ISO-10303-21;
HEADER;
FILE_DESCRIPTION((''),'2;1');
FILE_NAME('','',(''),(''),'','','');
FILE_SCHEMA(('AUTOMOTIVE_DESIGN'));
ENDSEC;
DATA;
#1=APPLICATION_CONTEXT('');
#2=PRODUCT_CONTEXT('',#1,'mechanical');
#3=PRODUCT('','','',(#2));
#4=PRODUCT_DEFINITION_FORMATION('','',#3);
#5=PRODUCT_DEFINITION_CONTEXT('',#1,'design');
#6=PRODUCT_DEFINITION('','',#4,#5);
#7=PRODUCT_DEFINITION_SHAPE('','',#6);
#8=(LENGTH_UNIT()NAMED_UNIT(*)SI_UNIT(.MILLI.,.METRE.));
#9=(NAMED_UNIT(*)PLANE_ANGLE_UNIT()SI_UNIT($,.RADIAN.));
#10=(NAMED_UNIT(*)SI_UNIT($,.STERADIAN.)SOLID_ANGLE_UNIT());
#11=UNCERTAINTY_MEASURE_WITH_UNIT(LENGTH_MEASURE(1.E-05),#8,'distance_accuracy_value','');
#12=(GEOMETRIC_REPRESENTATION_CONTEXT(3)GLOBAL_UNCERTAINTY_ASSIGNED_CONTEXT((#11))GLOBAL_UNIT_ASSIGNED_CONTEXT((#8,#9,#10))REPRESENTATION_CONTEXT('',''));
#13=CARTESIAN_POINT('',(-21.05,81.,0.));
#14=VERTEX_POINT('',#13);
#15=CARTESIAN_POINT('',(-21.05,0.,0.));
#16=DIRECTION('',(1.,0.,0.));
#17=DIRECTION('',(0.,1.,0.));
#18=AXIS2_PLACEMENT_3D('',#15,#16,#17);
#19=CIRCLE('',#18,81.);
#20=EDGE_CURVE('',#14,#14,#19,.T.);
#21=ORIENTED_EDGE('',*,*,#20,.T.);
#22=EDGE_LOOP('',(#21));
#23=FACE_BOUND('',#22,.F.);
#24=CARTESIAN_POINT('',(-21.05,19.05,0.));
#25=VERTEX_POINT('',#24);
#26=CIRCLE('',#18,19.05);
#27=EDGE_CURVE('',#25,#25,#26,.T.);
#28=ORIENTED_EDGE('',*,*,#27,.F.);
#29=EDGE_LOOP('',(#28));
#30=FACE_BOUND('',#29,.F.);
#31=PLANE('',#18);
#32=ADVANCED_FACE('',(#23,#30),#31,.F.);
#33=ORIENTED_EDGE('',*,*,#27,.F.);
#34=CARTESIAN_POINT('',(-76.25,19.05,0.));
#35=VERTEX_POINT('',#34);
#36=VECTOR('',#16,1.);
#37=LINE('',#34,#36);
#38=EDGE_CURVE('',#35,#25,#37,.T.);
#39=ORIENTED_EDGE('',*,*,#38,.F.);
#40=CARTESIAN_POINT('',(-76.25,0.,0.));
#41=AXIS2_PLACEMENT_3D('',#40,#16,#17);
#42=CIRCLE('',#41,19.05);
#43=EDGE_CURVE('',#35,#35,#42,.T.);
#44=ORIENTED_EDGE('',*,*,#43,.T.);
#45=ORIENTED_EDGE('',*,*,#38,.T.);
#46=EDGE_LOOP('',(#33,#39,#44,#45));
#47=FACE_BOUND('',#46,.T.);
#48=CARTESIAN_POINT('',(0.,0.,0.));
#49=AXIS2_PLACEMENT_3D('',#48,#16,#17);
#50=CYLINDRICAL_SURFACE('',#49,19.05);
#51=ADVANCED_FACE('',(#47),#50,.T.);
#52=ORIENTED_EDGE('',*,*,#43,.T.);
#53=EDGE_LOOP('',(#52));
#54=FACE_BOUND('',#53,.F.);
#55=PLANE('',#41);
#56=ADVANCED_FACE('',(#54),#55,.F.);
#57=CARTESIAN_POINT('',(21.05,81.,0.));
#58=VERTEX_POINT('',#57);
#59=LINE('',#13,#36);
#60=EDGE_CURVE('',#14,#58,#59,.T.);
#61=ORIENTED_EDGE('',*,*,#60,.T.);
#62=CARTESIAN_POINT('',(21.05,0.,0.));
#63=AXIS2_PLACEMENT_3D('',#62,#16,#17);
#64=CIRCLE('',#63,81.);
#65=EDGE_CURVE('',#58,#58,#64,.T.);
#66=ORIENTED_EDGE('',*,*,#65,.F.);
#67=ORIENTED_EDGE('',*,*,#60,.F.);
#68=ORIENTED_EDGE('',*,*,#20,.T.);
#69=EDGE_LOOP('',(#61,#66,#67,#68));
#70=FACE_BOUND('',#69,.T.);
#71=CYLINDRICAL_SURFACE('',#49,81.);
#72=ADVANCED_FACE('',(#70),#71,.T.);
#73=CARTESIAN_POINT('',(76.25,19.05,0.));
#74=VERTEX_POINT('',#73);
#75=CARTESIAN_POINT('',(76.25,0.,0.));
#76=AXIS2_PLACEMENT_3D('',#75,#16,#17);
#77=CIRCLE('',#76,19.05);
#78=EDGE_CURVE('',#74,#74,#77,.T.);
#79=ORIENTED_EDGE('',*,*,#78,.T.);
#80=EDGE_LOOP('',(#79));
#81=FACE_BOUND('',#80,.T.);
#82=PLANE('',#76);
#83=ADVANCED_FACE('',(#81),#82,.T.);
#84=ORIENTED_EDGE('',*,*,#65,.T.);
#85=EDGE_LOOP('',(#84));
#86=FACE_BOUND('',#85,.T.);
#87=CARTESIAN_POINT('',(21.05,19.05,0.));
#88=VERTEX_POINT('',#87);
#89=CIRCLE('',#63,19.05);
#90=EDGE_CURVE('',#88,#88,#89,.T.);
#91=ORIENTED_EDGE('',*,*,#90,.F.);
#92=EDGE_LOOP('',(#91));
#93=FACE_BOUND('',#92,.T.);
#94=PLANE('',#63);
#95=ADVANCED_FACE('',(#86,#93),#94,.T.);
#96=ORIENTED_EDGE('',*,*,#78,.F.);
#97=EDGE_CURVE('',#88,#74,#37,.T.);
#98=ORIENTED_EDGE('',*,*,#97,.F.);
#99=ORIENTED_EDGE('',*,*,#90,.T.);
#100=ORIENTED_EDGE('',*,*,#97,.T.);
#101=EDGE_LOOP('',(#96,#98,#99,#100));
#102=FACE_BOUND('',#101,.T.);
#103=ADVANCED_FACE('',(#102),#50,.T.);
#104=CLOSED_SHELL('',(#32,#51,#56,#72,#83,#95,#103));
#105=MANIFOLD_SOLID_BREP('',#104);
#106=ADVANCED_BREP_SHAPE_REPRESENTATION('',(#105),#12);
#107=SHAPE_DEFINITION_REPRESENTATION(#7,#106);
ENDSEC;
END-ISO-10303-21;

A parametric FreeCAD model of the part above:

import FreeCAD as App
import Part
import Sketcher

V = App.Vector

doc = App.newDocument("Part")
body = doc.addObject("PartDesign::Body", "Body")

sketch1 = body.newObject("Sketcher::SketchObject", "Sketch")
sketch1.AttachmentSupport = (doc.getObject("YZ_Plane"), [""])
sketch1.MapMode = "FlatFace"
sketch1.addGeometry(Part.Circle(V(0, 0, 0), V(0, 0, 1), 81), False)
sketch1.addConstraint([
    Sketcher.Constraint("Coincident", 0, 3, -1, 1),
    Sketcher.Constraint("Diameter", 0, 162.0),
])
pad1 = body.newObject("PartDesign::Pad", "Pad")
pad1.Profile = sketch1
pad1.Length = 42.1
pad1.Midplane = True

sketch2 = body.newObject("Sketcher::SketchObject", "Sketch001")
sketch2.AttachmentSupport = (doc.getObject("YZ_Plane"), [""])
sketch2.MapMode = "FlatFace"
sketch2.addGeometry(Part.Circle(V(0, 0, 0), V(0, 0, 1), 19), False)
sketch2.addConstraint([
    Sketcher.Constraint("Coincident", 0, 3, -1, 1),
    Sketcher.Constraint("Diameter", 0, 38.1),
])
pad2 = body.newObject("PartDesign::Pad", "Pad001")
pad2.Profile = sketch2
pad2.Length = 152.5
pad2.Midplane = True

doc.recompute()
